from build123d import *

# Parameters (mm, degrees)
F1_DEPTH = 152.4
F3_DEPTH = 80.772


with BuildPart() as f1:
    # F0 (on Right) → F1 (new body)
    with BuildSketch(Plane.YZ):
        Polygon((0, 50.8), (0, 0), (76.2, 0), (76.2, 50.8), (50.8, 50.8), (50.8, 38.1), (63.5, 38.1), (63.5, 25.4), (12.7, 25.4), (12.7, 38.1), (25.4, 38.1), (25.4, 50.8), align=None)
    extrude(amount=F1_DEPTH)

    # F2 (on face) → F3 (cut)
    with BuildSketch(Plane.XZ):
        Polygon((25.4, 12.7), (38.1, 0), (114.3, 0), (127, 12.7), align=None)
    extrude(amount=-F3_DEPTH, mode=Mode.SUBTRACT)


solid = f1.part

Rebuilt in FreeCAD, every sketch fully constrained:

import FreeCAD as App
import Part
import Sketcher

V = App.Vector
Q = App.Units.Quantity

doc = App.newDocument("Part")
body = doc.addObject("PartDesign::Body", "Body")

# Sketch on YZ plane
sketch1 = body.newObject("Sketcher::SketchObject", "Sketch")
sketch1.AttachmentSupport = (doc.getObject("YZ_Plane"), [""])
sketch1.MapMode = "FlatFace"
sketch1.addGeometry([
    Part.LineSegment(V(0, 50.8, 0), V(0, 0, 0)),  # 0
    Part.LineSegment(V(0, 0, 0), V(76.2, 0, 0)),  # 1
    Part.LineSegment(V(76.2, 0, 0), V(76.2, 50.8, 0)),  # 2
    Part.LineSegment(V(76.2, 50.8, 0), V(50.8, 50.8, 0)),  # 3
    Part.LineSegment(V(50.8, 50.8, 0), V(50.8, 38.1, 0)),  # 4
    Part.LineSegment(V(50.8, 38.1, 0), V(63.5, 38.1, 0)),  # 5
    Part.LineSegment(V(63.5, 38.1, 0), V(63.5, 25.4, 0)),  # 6
    Part.LineSegment(V(63.5, 25.4, 0), V(12.7, 25.4, 0)),  # 7
    Part.LineSegment(V(12.7, 25.4, 0), V(12.7, 38.1, 0)),  # 8
    Part.LineSegment(V(12.7, 38.1, 0), V(25.4, 38.1, 0)),  # 9
    Part.LineSegment(V(25.4, 38.1, 0), V(25.4, 50.8, 0)),  # 10
    Part.LineSegment(V(25.4, 50.8, 0), V(0, 50.8, 0)),  # 11
], False)
sketch1.addConstraint([
    Sketcher.Constraint("Coincident", 0, 2, 1, 1),
    Sketcher.Constraint("Coincident", 1, 2, 2, 1),
    Sketcher.Constraint("Coincident", 2, 2, 3, 1),
    Sketcher.Constraint("Coincident", 3, 2, 4, 1),
    Sketcher.Constraint("Coincident", 4, 2, 5, 1),
    Sketcher.Constraint("Coincident", 5, 2, 6, 1),
    Sketcher.Constraint("Coincident", 6, 2, 7, 1),
    Sketcher.Constraint("Coincident", 7, 2, 8, 1),
    Sketcher.Constraint("Coincident", 8, 2, 9, 1),
    Sketcher.Constraint("Coincident", 9, 2, 10, 1),
    Sketcher.Constraint("Coincident", 10, 2, 11, 1),
    Sketcher.Constraint("Coincident", 11, 2, 0, 1),
    Sketcher.Constraint("Vertical", 0),
    Sketcher.Constraint("Horizontal", 1),
    Sketcher.Constraint("Vertical", 2),
    Sketcher.Constraint("Horizontal", 3),
    Sketcher.Constraint("Vertical", 4),
    Sketcher.Constraint("Horizontal", 5),
    Sketcher.Constraint("Vertical", 6),
    Sketcher.Constraint("Horizontal", 7),
    Sketcher.Constraint("Vertical", 8),
    Sketcher.Constraint("Horizontal", 9),
    Sketcher.Constraint("Vertical", 10),
    Sketcher.Constraint("Horizontal", 11),
    Sketcher.Constraint("Coincident", 0, 2, -1, 1),
    Sketcher.Constraint("Horizontal", 5, 2, 8, 2),
    Sketcher.Constraint("Horizontal", 3, 2, 10, 2),
    Sketcher.Constraint("Equal", 5, 9),
    Sketcher.Constraint("Equal", 3, 11),
    Sketcher.Constraint("Equal", 7, 0),
    Sketcher.Constraint("Equal", 9, 4),
    Sketcher.Constraint("Equal", 4, 6),
    Sketcher.Constraint("DistanceX", 1, 1, 1, 2, Q("3 in")),
    Sketcher.Constraint("DistanceX", 3, 2, 3, 1, Q("1 in")),
    Sketcher.Constraint("DistanceX", 7, 2, 7, 1, Q("2 in")),
])
pad1 = body.newObject("PartDesign::Pad", "Pad")
pad1.Profile = sketch1
pad1.Length = Q("6 in")

# Sketch on XZ plane
sketch2 = body.newObject("Sketcher::SketchObject", "Sketch001")
sketch2.AttachmentSupport = (doc.getObject("XZ_Plane"), [""])
sketch2.MapMode = "FlatFace"
sketch2.addGeometry([
    Part.LineSegment(V(25.4, 12.7, 0), V(38.1, 0, 0)),
    Part.LineSegment(V(38.1, 0, 0), V(114.3, 0, 0)),
    Part.LineSegment(V(114.3, 0, 0), V(127, 12.7, 0)),
    Part.LineSegment(V(127, 12.7, 0), V(25.4, 12.7, 0)),
], False)
sketch2.addConstraint([
    Sketcher.Constraint("Coincident", 0, 2, 1, 1),
    Sketcher.Constraint("Coincident", 1, 2, 2, 1),
    Sketcher.Constraint("Coincident", 2, 2, 3, 1),
    Sketcher.Constraint("Coincident", 3, 2, 0, 1),
    Sketcher.Constraint("Horizontal", 1),
    Sketcher.Constraint("Horizontal", 3),
    Sketcher.Constraint("PointOnObject", 0, 2, -1),
    Sketcher.Constraint("Perpendicular", 0, 2),
    Sketcher.Constraint("Equal", 0, 2),
    Sketcher.Constraint("DistanceX", 1, 1, 1, 2, Q("3 in")),
    Sketcher.Constraint("DistanceX", 3, 2, 3, 1, Q("4 in")),
    Sketcher.Constraint("DistanceX", -1, 1, 2, 2, Q("5 in")),
])
pocket1 = body.newObject("PartDesign::Pocket", "Pocket")
pocket1.Profile = sketch2
pocket1.Length = Q("3.18 in")

doc.recompute()
